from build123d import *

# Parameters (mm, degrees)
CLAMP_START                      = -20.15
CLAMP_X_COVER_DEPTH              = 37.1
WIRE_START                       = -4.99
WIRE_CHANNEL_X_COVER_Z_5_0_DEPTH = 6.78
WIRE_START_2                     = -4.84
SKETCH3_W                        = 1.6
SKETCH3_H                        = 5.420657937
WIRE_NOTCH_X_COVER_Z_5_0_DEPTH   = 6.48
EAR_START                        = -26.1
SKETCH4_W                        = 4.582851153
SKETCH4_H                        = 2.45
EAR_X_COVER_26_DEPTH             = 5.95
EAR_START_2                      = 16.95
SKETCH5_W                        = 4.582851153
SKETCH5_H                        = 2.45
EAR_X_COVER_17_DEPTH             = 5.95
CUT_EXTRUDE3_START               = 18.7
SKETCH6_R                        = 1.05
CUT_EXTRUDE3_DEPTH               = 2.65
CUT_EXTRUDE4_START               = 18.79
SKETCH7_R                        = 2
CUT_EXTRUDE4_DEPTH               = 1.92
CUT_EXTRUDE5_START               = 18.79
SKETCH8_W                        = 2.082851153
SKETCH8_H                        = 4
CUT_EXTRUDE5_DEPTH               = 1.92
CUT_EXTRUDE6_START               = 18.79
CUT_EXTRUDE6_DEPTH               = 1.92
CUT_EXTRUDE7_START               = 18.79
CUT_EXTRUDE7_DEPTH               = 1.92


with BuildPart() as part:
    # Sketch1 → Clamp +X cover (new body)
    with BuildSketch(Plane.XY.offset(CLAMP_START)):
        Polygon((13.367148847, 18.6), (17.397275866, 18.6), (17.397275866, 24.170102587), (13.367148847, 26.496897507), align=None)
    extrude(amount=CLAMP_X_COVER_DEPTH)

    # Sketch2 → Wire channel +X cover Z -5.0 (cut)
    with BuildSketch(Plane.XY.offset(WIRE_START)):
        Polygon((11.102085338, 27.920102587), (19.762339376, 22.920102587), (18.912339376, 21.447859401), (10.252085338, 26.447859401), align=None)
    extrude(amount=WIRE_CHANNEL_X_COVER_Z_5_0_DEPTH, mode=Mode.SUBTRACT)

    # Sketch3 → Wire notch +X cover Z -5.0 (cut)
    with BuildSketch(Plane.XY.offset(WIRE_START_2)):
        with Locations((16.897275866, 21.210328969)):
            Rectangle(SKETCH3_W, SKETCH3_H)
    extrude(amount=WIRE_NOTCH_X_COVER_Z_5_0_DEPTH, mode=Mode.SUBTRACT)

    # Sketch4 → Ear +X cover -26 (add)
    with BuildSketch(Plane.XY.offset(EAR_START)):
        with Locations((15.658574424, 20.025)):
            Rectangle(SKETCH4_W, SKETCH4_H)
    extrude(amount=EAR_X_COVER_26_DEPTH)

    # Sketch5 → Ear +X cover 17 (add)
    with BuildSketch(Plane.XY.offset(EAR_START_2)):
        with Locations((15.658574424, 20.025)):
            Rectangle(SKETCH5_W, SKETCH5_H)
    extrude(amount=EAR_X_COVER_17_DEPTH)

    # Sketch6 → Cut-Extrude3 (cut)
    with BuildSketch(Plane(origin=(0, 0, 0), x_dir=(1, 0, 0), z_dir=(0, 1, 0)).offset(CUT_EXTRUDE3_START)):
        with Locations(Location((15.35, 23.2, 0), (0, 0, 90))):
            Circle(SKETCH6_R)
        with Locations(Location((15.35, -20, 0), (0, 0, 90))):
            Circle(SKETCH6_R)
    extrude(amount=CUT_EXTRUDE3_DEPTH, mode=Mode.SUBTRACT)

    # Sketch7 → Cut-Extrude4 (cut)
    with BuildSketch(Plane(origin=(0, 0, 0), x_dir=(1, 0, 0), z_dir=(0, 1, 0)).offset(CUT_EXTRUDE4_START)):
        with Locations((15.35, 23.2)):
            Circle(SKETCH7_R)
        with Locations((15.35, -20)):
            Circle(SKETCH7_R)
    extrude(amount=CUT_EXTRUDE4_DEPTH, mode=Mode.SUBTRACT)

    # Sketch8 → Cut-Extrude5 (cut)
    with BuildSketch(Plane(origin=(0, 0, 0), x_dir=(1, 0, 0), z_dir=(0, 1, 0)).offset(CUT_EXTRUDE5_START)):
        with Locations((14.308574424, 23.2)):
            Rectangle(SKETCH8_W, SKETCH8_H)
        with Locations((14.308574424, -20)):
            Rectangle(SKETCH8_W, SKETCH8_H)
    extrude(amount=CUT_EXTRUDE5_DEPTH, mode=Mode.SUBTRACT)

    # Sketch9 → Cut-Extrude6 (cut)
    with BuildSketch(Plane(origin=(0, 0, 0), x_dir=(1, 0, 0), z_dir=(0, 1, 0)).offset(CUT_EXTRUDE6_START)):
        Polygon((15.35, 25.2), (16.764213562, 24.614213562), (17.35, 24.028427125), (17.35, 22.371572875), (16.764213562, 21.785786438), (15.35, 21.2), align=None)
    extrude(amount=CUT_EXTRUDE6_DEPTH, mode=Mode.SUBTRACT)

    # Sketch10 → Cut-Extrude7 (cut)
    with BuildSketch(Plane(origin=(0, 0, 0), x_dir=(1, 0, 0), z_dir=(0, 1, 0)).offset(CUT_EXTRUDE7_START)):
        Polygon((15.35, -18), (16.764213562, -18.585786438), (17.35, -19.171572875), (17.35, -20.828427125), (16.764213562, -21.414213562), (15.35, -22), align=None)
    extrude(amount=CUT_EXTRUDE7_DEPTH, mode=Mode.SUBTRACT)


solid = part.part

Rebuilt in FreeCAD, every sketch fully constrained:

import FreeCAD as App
import Part
import Sketcher

V = App.Vector
Q = App.Units.Quantity

doc = App.newDocument("Part")
body = doc.addObject("PartDesign::Body", "Body")

sketch1 = body.newObject("Sketcher::SketchObject", "Sketch")
sketch1.AttachmentSupport = (doc.getObject("XY_Plane"), [""])
sketch1.MapMode = "FlatFace"
sketch1.AttachmentOffset = App.Placement(V(0, 0, -20.15), App.Rotation())
sketch1.addGeometry([
    Part.LineSegment(V(13.4, 18.6, 0), V(17.4, 18.6, 0)),
    Part.LineSegment(V(17.4, 18.6, 0), V(17.4, 24.2, 0)),
    Part.LineSegment(V(17.4, 24.2, 0), V(13.4, 26.5, 0)),
    Part.LineSegment(V(13.4, 26.5, 0), V(13.4, 18.6, 0)),
], False)
sketch1.addConstraint([
    Sketcher.Constraint("Coincident", 0, 2, 1, 1),
    Sketcher.Constraint("Coincident", 1, 2, 2, 1),
    Sketcher.Constraint("Coincident", 2, 2, 3, 1),
    Sketcher.Constraint("Coincident", 3, 2, 0, 1),
    Sketcher.Constraint("Horizontal", 0),
    Sketcher.Constraint("Vertical", 1),
    Sketcher.Constraint("Vertical", 3),
    Sketcher.Constraint("Angle", 2, Q("150 deg")),
    Sketcher.Constraint("DistanceY", -1, 1, 0, 2, 18.6),
    Sketcher.Constraint("Distance", 2, 4.65359),
    Sketcher.Constraint("DistanceY", 1, 1, 1, 2, 5.570103),
    Sketcher.Constraint("DistanceX", -1, 1, 2, 2, 13.367149),
])
pad1 = body.newObject("PartDesign::Pad", "Pad")
pad1.Profile = sketch1
pad1.Length = 37.1

sketch2 = body.newObject("Sketcher::SketchObject", "Sketch001")
sketch2.AttachmentSupport = (doc.getObject("XY_Plane"), [""])
sketch2.MapMode = "FlatFace"
sketch2.AttachmentOffset = App.Placement(V(0, 0, -4.99), App.Rotation())
sketch2.addGeometry([
    Part.LineSegment(V(19.8, 22.9, 0), V(11.1, 27.9, 0)),
    Part.LineSegment(V(11.1, 27.9, 0), V(10.3, 26.4, 0)),
    Part.LineSegment(V(10.3, 26.4, 0), V(18.9, 21.4, 0)),
    Part.LineSegment(V(18.9, 21.4, 0), V(19.8, 22.9, 0)),
], False)
sketch2.addConstraint([
    Sketcher.Constraint("Coincident", 0, 2, 1, 1),
    Sketcher.Constraint("Coincident", 1, 2, 2, 1),
    Sketcher.Constraint("Coincident", 2, 2, 3, 1),
    Sketcher.Constraint("Coincident", 3, 2, 0, 1),
    Sketcher.Constraint("Perpendicular", 0, 1),
    Sketcher.Constraint("Perpendicular", 1, 2),
    Sketcher.Constraint("Perpendicular", 2, 3),
    Sketcher.Constraint("Angle", 0, Q("150 deg")),
    Sketcher.Constraint("Distance", 0, 10.0),
    Sketcher.Constraint("Distance", 1, 1.7),
    Sketcher.Constraint("DistanceY", -1, 1, 1, 2, 26.447859),
    Sketcher.Constraint("DistanceX", -1, 1, 2, 2, 18.912339),
])
pocket1 = body.newObject("PartDesign::Pocket", "Pocket")
pocket1.Profile = sketch2
pocket1.Length = 6.78
pocket1.Reversed = True

sketch3 = body.newObject("Sketcher::SketchObject", "Sketch002")
sketch3.AttachmentSupport = (doc.getObject("XY_Plane"), [""])
sketch3.MapMode = "FlatFace"
sketch3.AttachmentOffset = App.Placement(V(0, 0, -4.84), App.Rotation())
sketch3.addGeometry([
    Part.LineSegment(V(16.1, 23.9, 0), V(16.1, 18.5, 0)),
    Part.LineSegment(V(16.1, 18.5, 0), V(17.7, 18.5, 0)),
    Part.LineSegment(V(17.7, 18.5, 0), V(17.7, 23.9, 0)),
    Part.LineSegment(V(17.7, 23.9, 0), V(16.1, 23.9, 0)),
], False)
sketch3.addConstraint([
    Sketcher.Constraint("Coincident", 0, 2, 1, 1),
    Sketcher.Constraint("Coincident", 1, 2, 2, 1),
    Sketcher.Constraint("Coincident", 2, 2, 3, 1),
    Sketcher.Constraint("Coincident", 3, 2, 0, 1),
    Sketcher.Constraint("Vertical", 0),
    Sketcher.Constraint("Horizontal", 1),
    Sketcher.Constraint("Vertical", 2),
    Sketcher.Constraint("Horizontal", 3),
    Sketcher.Constraint("DistanceX", 1, 1, 1, 2, 1.6),
    Sketcher.Constraint("DistanceY", -1, 1, 0, 2, 18.5),
    Sketcher.Constraint("DistanceY", 0, 2, 0, 1, 5.420658),
    Sketcher.Constraint("DistanceX", -1, 1, 0, 2, 16.097276),
])
pocket2 = body.newObject("PartDesign::Pocket", "Pocket001")
pocket2.Profile = sketch3
pocket2.Length = 6.48
pocket2.Reversed = True

sketch4 = body.newObject("Sketcher::SketchObject", "Sketch003")
sketch4.AttachmentSupport = (doc.getObject("XY_Plane"), [""])
sketch4.MapMode = "FlatFace"
sketch4.AttachmentOffset = App.Placement(V(0, 0, -26.1), App.Rotation())
sketch4.addGeometry([
    Part.LineSegment(V(13.4, 21.2, 0), V(13.4, 18.8, 0)),
    Part.LineSegment(V(13.4, 18.8, 0), V(17.9, 18.8, 0)),
    Part.LineSegment(V(17.9, 18.8, 0), V(17.9, 21.2, 0)),
    Part.LineSegment(V(17.9, 21.2, 0), V(13.4, 21.2, 0)),
], False)
sketch4.addConstraint([
    Sketcher.Constraint("Coincident", 0, 2, 1, 1),
    Sketcher.Constraint("Coincident", 1, 2, 2, 1),
    Sketcher.Constraint("Coincident", 2, 2, 3, 1),
    Sketcher.Constraint("Coincident", 3, 2, 0, 1),
    Sketcher.Constraint("Vertical", 0),
    Sketcher.Constraint("Horizontal", 1),
    Sketcher.Constraint("Vertical", 2),
    Sketcher.Constraint("Horizontal", 3),
    Sketcher.Constraint("DistanceY", 0, 2, 0, 1, 2.45),
    Sketcher.Constraint("DistanceY", -1, 1, 0, 2, 18.8),
    Sketcher.Constraint("DistanceX", -1, 1, 1, 2, 17.95),
    Sketcher.Constraint("DistanceX", 1, 1, 1, 2, 4.582851),
])
pad2 = body.newObject("PartDesign::Pad", "Pad001")
pad2.Profile = sketch4
pad2.Length = 5.95

sketch5 = body.newObject("Sketcher::SketchObject", "Sketch004")
sketch5.AttachmentSupport = (doc.getObject("XY_Plane"), [""])
sketch5.MapMode = "FlatFace"
sketch5.AttachmentOffset = App.Placement(V(0, 0, 16.95), App.Rotation())
sketch5.addGeometry([
    Part.LineSegment(V(13.4, 21.2, 0), V(13.4, 18.8, 0)),
    Part.LineSegment(V(13.4, 18.8, 0), V(17.9, 18.8, 0)),
    Part.LineSegment(V(17.9, 18.8, 0), V(17.9, 21.2, 0)),
    Part.LineSegment(V(17.9, 21.2, 0), V(13.4, 21.2, 0)),
], False)
sketch5.addConstraint([
    Sketcher.Constraint("Coincident", 0, 2, 1, 1),
    Sketcher.Constraint("Coincident", 1, 2, 2, 1),
    Sketcher.Constraint("Coincident", 2, 2, 3, 1),
    Sketcher.Constraint("Coincident", 3, 2, 0, 1),
    Sketcher.Constraint("Vertical", 0),
    Sketcher.Constraint("Horizontal", 1),
    Sketcher.Constraint("Vertical", 2),
    Sketcher.Constraint("Horizontal", 3),
    Sketcher.Constraint("DistanceY", 0, 2, 0, 1, 2.45),
    Sketcher.Constraint("DistanceY", -1, 1, 0, 2, 18.8),
    Sketcher.Constraint("DistanceX", -1, 1, 1, 2, 17.95),
    Sketcher.Constraint("DistanceX", 1, 1, 1, 2, 4.582851),
])
pad3 = body.newObject("PartDesign::Pad", "Pad002")
pad3.Profile = sketch5
pad3.Length = 5.95

sketch6 = body.newObject("Sketcher::SketchObject", "Sketch005")
sketch6.AttachmentSupport = (doc.getObject("XZ_Plane"), [""])
sketch6.MapMode = "FlatFace"
sketch6.AttachmentOffset = App.Placement(V(0, 0, -18.7), App.Rotation())
sketch6.addGeometry([
    Part.Circle(V(15.3, -23.2, 0), V(0, 0, 1), 1.1),
    Part.Circle(V(15.3, 20, 0), V(0, 0, 1), 1.1),
], False)
sketch6.addConstraint([
    Sketcher.Constraint("Equal", 0, 1),
    Sketcher.Constraint("Vertical", 0, 3, 1, 3),
    Sketcher.Constraint("Diameter", 0, 2.1),
    Sketcher.Constraint("DistanceY", -1, 1, 1, 3, 20.0),
    Sketcher.Constraint("DistanceY", 0, 3, -1, 1, 23.2),
    Sketcher.Constraint("DistanceX", -1, 1, 0, 3, 15.35),
])
pocket3 = body.newObject("PartDesign::Pocket", "Pocket002")
pocket3.Profile = sketch6
pocket3.Length = 2.65

sketch7 = body.newObject("Sketcher::SketchObject", "Sketch006")
sketch7.AttachmentSupport = (doc.getObject("XZ_Plane"), [""])
sketch7.MapMode = "FlatFace"
sketch7.AttachmentOffset = App.Placement(V(0, 0, -18.79), App.Rotation())
sketch7.addGeometry([
    Part.Circle(V(15.3, -23.2, 0), V(0, 0, 1), 2),
    Part.Circle(V(15.3, 20, 0), V(0, 0, 1), 2),
], False)
sketch7.addConstraint([
    Sketcher.Constraint("Equal", 0, 1),
    Sketcher.Constraint("Vertical", 0, 3, 1, 3),
    Sketcher.Constraint("Diameter", 0, 4.0),
    Sketcher.Constraint("DistanceY", -1, 1, 1, 3, 20.0),
    Sketcher.Constraint("DistanceY", 0, 3, -1, 1, 23.2),
    Sketcher.Constraint("DistanceX", -1, 1, 0, 3, 15.35),
])
pocket4 = body.newObject("PartDesign::Pocket", "Pocket003")
pocket4.Profile = sketch7
pocket4.Length = 1.92

sketch8 = body.newObject("Sketcher::SketchObject", "Sketch007")
sketch8.AttachmentSupport = (doc.getObject("XZ_Plane"), [""])
sketch8.MapMode = "FlatFace"
sketch8.AttachmentOffset = App.Placement(V(0, 0, -18.79), App.Rotation())
sketch8.addGeometry([
    Part.LineSegment(V(13.3, -25.2, 0), V(13.3, -21.2, 0)),
    Part.LineSegment(V(13.3, -21.2, 0), V(15.3, -21.2, 0)),
    Part.LineSegment(V(15.3, -21.2, 0), V(15.3, -25.2, 0)),
    Part.LineSegment(V(15.3, -25.2, 0), V(13.3, -25.2, 0)),
    Part.LineSegment(V(13.3, 18, 0), V(13.3, 22, 0)),
    Part.LineSegment(V(13.3, 22, 0), V(15.3, 22, 0)),
    Part.LineSegment(V(15.3, 22, 0), V(15.3, 18, 0)),
    Part.LineSegment(V(15.3, 18, 0), V(13.3, 18, 0)),
], False)
sketch8.addConstraint([
    Sketcher.Constraint("Coincident", 0, 2, 1, 1),
    Sketcher.Constraint("Coincident", 1, 2, 2, 1),
    Sketcher.Constraint("Coincident", 2, 2, 3, 1),
    Sketcher.Constraint("Coincident", 3, 2, 0, 1),
    Sketcher.Constraint("Coincident", 4, 2, 5, 1),
    Sketcher.Constraint("Coincident", 5, 2, 6, 1),
    Sketcher.Constraint("Coincident", 6, 2, 7, 1),
    Sketcher.Constraint("Coincident", 7, 2, 4, 1),
    Sketcher.Constraint("Vertical", 0),
    Sketcher.Constraint("Horizontal", 1),
    Sketcher.Constraint("Vertical", 2),
    Sketcher.Constraint("Horizontal", 3),
    Sketcher.Constraint("Vertical", 4),
    Sketcher.Constraint("Horizontal", 5),
    Sketcher.Constraint("Vertical", 6),
    Sketcher.Constraint("Horizontal", 7),
    Sketcher.Constraint("Vertical", 3, 2, 4, 2),
    Sketcher.Constraint("Vertical", 2, 2, 5, 2),
    Sketcher.Constraint("Equal", 2, 4),
    Sketcher.Constraint("DistanceY", 0, 1, 0, 2, 4.0),
    Sketcher.Constraint("DistanceY", -1, 1, 4, 2, 22.0),
    Sketcher.Constraint("DistanceY", 0, 2, -1, 1, 21.2),
    Sketcher.Constraint("DistanceX", -1, 1, 1, 2, 15.35),
    Sketcher.Constraint("DistanceX", 1, 1, 1, 2, 2.082851),
])
pocket5 = body.newObject("PartDesign::Pocket", "Pocket004")
pocket5.Profile = sketch8
pocket5.Length = 1.92

sketch9 = body.newObject("Sketcher::SketchObject", "Sketch008")
sketch9.AttachmentSupport = (doc.getObject("XZ_Plane"), [""])
sketch9.MapMode = "FlatFace"
sketch9.AttachmentOffset = App.Placement(V(0, 0, -18.79), App.Rotation())
sketch9.addGeometry([
    Part.LineSegment(V(16.8, -24.6, 0), V(15.3, -25.2, 0)),
    Part.LineSegment(V(15.3, -25.2, 0), V(15.3, -21.2, 0)),
    Part.LineSegment(V(15.3, -21.2, 0), V(16.8, -21.8, 0)),
    Part.LineSegment(V(16.8, -21.8, 0), V(17.4, -22.4, 0)),
    Part.LineSegment(V(17.4, -22.4, 0), V(17.4, -24, 0)),
    Part.LineSegment(V(17.4, -24, 0), V(16.8, -24.6, 0)),
], False)
sketch9.addConstraint([
    Sketcher.Constraint("Coincident", 0, 2, 1, 1),
    Sketcher.Constraint("Coincident", 1, 2, 2, 1),
    Sketcher.Constraint("Coincident", 2, 2, 3, 1),
    Sketcher.Constraint("Coincident", 3, 2, 4, 1),
    Sketcher.Constraint("Coincident", 4, 2, 5, 1),
    Sketcher.Constraint("Coincident", 5, 2, 0, 1),
    Sketcher.Constraint("Vertical", 1),
    Sketcher.Constraint("Vertical", 4),
    Sketcher.Constraint("Perpendicular", 3, 5),
    Sketcher.Constraint("Vertical", 2, 2, 5, 2),
    Sketcher.Constraint("Equal", 0, 2),
    Sketcher.Constraint("Equal", 3, 5),
    Sketcher.Constraint("DistanceY", 1, 1, 1, 2, 4.0),
    Sketcher.Constraint("Angle", 0, Q("-157.5 deg")),
    Sketcher.Constraint("DistanceX", 1, 2, 3, 2, 2.0),
    Sketcher.Constraint("DistanceY", 0, 2, -1, 1, 25.2),
    Sketcher.Constraint("DistanceX", -1, 1, 0, 2, 15.35),
    Sketcher.Constraint("DistanceY", 4, 2, 4, 1, 1.656854),
])
pocket6 = body.newObject("PartDesign::Pocket", "Pocket005")
pocket6.Profile = sketch9
pocket6.Length = 1.92

sketch10 = body.newObject("Sketcher::SketchObject", "Sketch009")
sketch10.AttachmentSupport = (doc.getObject("XZ_Plane"), [""])
sketch10.MapMode = "FlatFace"
sketch10.AttachmentOffset = App.Placement(V(0, 0, -18.79), App.Rotation())
sketch10.addGeometry([
    Part.LineSegment(V(16.8, 18.6, 0), V(15.3, 18, 0)),
    Part.LineSegment(V(15.3, 18, 0), V(15.3, 22, 0)),
    Part.LineSegment(V(15.3, 22, 0), V(16.8, 21.4, 0)),
    Part.LineSegment(V(16.8, 21.4, 0), V(17.4, 20.8, 0)),
    Part.LineSegment(V(17.4, 20.8, 0), V(17.4, 19.2, 0)),
    Part.LineSegment(V(17.4, 19.2, 0), V(16.8, 18.6, 0)),
], False)
sketch10.addConstraint([
    Sketcher.Constraint("Coincident", 0, 2, 1, 1),
    Sketcher.Constraint("Coincident", 1, 2, 2, 1),
    Sketcher.Constraint("Coincident", 2, 2, 3, 1),
    Sketcher.Constraint("Coincident", 3, 2, 4, 1),
    Sketcher.Constraint("Coincident", 4, 2, 5, 1),
    Sketcher.Constraint("Coincident", 5, 2, 0, 1),
    Sketcher.Constraint("Vertical", 1),
    Sketcher.Constraint("Vertical", 4),
    Sketcher.Constraint("Perpendicular", 3, 5),
    Sketcher.Constraint("Vertical", 2, 2, 5, 2),
    Sketcher.Constraint("Equal", 0, 2),
    Sketcher.Constraint("Equal", 3, 5),
    Sketcher.Constraint("DistanceY", 1, 1, 1, 2, 4.0),
    Sketcher.Constraint("DistanceY", -1, 1, 0, 2, 18.0),
    Sketcher.Constraint("Angle", 0, Q("-157.5 deg")),
    Sketcher.Constraint("DistanceX", 1, 2, 3, 2, 2.0),
    Sketcher.Constraint("DistanceX", -1, 1, 0, 2, 15.35),
    Sketcher.Constraint("DistanceY", 4, 2, 4, 1, 1.656854),
])
pocket7 = body.newObject("PartDesign::Pocket", "Pocket006")
pocket7.Profile = sketch10
pocket7.Length = 1.92

doc.recompute()
